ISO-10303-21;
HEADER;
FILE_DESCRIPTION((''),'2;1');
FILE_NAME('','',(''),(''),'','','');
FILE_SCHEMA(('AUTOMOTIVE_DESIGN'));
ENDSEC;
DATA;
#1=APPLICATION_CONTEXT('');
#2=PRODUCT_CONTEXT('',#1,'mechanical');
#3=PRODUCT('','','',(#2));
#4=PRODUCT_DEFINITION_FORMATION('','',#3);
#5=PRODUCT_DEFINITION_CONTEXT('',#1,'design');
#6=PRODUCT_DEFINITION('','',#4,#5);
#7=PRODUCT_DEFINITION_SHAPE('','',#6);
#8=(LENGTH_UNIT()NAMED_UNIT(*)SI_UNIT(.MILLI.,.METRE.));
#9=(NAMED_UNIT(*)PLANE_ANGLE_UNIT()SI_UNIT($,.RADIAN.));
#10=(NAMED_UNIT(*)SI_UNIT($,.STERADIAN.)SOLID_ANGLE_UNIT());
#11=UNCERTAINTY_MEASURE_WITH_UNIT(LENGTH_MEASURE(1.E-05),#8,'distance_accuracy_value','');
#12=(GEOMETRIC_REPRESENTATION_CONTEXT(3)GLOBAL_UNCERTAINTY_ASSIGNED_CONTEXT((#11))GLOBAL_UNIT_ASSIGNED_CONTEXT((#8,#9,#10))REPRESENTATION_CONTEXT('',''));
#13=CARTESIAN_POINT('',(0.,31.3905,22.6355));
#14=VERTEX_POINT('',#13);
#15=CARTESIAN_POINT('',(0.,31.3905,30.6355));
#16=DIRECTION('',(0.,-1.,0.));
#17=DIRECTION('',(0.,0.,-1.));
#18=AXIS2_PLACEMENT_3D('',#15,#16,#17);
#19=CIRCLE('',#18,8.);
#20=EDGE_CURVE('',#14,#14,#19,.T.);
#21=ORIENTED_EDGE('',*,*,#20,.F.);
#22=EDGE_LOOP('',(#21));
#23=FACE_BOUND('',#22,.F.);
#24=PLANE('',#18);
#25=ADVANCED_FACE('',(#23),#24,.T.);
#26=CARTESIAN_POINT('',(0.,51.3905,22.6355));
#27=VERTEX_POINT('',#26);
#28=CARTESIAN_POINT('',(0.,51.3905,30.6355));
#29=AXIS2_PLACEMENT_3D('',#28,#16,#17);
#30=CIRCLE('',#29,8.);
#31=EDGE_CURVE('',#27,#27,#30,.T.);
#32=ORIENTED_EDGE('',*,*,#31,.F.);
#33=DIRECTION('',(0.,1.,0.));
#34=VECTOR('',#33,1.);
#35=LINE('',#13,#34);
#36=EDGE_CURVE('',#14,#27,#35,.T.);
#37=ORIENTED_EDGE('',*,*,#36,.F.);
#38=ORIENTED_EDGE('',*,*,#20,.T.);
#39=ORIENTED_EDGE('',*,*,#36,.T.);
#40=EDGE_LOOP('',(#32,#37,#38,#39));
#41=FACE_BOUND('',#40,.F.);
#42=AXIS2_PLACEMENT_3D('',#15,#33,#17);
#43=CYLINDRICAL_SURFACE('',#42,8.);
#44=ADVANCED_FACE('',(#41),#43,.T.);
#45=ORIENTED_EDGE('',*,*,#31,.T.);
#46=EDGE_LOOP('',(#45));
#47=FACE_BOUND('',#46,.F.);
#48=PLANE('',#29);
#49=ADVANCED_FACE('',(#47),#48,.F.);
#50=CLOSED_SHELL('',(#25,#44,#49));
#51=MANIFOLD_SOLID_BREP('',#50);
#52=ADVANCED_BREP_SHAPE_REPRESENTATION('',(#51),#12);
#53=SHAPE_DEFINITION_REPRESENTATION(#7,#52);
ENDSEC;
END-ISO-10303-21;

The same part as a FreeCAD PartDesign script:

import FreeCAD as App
import Part
import Sketcher


def add_polygon(sketch, points):
    """Adds a closed chain of lines whose ends are joined by coincident constraints."""
    first, n = sketch.GeometryCount, len(points)
    for a, b in zip(points, points[1:] + points[:1]):
        sketch.addGeometry(Part.LineSegment(App.Vector(*a, 0), App.Vector(*b, 0)), False)
    for i in range(n):
        sketch.addConstraint(Sketcher.Constraint("Coincident", first + i, 2, first + (i + 1) % n, 1))

doc = App.newDocument("Part")
body = doc.addObject("PartDesign::Body", "Body")

# Sketch on YZ plane
sketch1 = body.newObject("Sketcher::SketchObject", "Sketch")
sketch1.AttachmentSupport = (doc.getObject("YZ_Plane"), [""])
sketch1.MapMode = "FlatFace"
add_polygon(sketch1, [(51.3905, 22.6355), (51.3905, 30.6355), (31.3905, 30.6355), (31.3905, 22.6355)])  # lines 0-3
sketch1.addGeometry(Part.LineSegment(App.Vector(51.3905, 30.6355, 0), App.Vector(31.3905, 30.6355, 0)), True)  # axis
sketch1.addConstraint(Sketcher.Constraint("Vertical", 0))
sketch1.addConstraint(Sketcher.Constraint("Horizontal", 1))
sketch1.addConstraint(Sketcher.Constraint("Vertical", 2))
sketch1.addConstraint(Sketcher.Constraint("Horizontal", 3))
sketch1.addConstraint(Sketcher.Constraint("Horizontal", 4))
sketch1.addConstraint(Sketcher.Constraint("Coincident", 4, 1, 0, 2))
sketch1.addConstraint(Sketcher.Constraint("Vertical", 2, 2, 4, 2))
sketch1.addConstraint(Sketcher.Constraint("DistanceX", 1, 2, 1, 1, 20.0))
sketch1.addConstraint(Sketcher.Constraint("DistanceY", 0, 1, 0, 2, 8.0))
sketch1.addConstraint(Sketcher.Constraint("DistanceX", -1, 1, 0, 2, 51.3905))
sketch1.addConstraint(Sketcher.Constraint("DistanceY", -1, 1, 0, 2, 30.6355))
revolution = body.newObject("PartDesign::Revolution", "Revolution")
revolution.Profile = sketch1
revolution.ReferenceAxis = (sketch1, ["Axis0"])
revolution.Angle = 360

doc.recompute()
